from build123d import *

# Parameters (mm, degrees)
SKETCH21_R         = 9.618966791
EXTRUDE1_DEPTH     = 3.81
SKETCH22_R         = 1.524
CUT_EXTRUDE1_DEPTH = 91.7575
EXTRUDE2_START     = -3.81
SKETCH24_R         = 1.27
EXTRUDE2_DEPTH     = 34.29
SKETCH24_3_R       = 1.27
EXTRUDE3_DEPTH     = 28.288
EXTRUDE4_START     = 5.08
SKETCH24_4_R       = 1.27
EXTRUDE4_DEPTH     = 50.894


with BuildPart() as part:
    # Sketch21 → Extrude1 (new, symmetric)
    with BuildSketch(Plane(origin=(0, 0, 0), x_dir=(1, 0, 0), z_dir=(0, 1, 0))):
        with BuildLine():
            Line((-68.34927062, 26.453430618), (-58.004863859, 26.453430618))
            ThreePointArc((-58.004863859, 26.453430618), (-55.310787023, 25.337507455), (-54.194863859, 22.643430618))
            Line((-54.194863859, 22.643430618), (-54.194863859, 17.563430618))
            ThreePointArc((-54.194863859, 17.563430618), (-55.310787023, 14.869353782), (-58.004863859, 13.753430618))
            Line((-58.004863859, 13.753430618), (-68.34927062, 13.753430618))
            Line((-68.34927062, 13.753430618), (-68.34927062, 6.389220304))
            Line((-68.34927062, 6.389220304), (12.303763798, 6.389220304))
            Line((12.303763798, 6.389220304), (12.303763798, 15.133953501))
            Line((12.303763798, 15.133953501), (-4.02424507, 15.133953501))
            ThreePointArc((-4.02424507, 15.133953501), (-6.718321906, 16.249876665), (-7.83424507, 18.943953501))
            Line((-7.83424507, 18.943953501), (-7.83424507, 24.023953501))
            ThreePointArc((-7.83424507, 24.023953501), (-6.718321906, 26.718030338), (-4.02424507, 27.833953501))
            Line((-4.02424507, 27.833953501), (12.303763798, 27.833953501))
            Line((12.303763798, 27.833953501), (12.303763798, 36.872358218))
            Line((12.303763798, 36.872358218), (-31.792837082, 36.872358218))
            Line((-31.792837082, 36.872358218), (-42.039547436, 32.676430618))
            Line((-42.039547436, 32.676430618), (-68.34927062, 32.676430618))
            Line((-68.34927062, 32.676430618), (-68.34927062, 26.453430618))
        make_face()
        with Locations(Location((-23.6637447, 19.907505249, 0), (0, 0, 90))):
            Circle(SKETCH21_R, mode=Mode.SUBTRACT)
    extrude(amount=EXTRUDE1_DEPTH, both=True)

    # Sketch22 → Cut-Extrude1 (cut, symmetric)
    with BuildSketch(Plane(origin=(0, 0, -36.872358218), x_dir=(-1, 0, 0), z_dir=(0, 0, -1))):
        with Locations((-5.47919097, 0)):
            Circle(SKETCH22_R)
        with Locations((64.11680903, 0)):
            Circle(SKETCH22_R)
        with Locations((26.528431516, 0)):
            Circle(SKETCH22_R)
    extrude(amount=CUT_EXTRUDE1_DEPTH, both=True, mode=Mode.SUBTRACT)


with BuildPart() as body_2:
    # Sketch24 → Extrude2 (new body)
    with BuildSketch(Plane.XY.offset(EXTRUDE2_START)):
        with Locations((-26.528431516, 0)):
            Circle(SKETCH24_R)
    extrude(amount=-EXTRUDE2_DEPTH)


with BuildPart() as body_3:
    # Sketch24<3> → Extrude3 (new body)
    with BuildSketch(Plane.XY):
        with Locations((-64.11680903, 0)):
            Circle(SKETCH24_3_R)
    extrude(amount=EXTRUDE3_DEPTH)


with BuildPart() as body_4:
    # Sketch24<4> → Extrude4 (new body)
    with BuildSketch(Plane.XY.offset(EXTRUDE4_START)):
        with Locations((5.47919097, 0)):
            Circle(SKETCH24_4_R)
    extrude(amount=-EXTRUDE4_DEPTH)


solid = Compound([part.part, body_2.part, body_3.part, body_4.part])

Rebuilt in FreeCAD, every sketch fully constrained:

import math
import FreeCAD as App
import Part
import Sketcher
Q = App.Units.Quantity

doc = App.newDocument("Part")
body = doc.addObject("PartDesign::Body", "Body")

# Sketch on XZ plane
sketch1 = body.newObject("Sketcher::SketchObject", "Sketch")
sketch1.AttachmentSupport = (doc.getObject("XZ_Plane"), [""])
sketch1.MapMode = "FlatFace"
sketch1.addGeometry(Part.LineSegment(App.Vector(-68.349271, -26.453431, 0), App.Vector(-58.004864, -26.453431, 0)), False)
sketch1.addGeometry(Part.ArcOfCircle(Part.Circle(App.Vector(-58.004864, -22.643431, 0), App.Vector(0, 0, 1), 3.81), math.radians(-90), math.radians(0)), False)
sketch1.addGeometry(Part.LineSegment(App.Vector(-54.194864, -22.643431, 0), App.Vector(-54.194864, -17.563431, 0)), False)
sketch1.addGeometry(Part.ArcOfCircle(Part.Circle(App.Vector(-58.004864, -17.563431, 0), App.Vector(0, 0, 1), 3.81), math.radians(0), math.radians(90)), False)
sketch1.addGeometry(Part.LineSegment(App.Vector(-58.004864, -13.753431, 0), App.Vector(-68.349271, -13.753431, 0)), False)
sketch1.addGeometry(Part.LineSegment(App.Vector(-68.349271, -13.753431, 0), App.Vector(-68.349271, -6.38922, 0)), False)
sketch1.addGeometry(Part.LineSegment(App.Vector(-68.349271, -6.38922, 0), App.Vector(12.303764, -6.38922, 0)), False)
sketch1.addGeometry(Part.LineSegment(App.Vector(12.303764, -6.38922, 0), App.Vector(12.303764, -15.133954, 0)), False)
sketch1.addGeometry(Part.LineSegment(App.Vector(12.303764, -15.133954, 0), App.Vector(-4.024245, -15.133954, 0)), False)
sketch1.addGeometry(Part.ArcOfCircle(Part.Circle(App.Vector(-4.024245, -18.943954, 0), App.Vector(0, 0, 1), 3.81), math.radians(90), math.radians(180)), False)
sketch1.addGeometry(Part.LineSegment(App.Vector(-7.834245, -18.943954, 0), App.Vector(-7.834245, -24.023954, 0)), False)
sketch1.addGeometry(Part.ArcOfCircle(Part.Circle(App.Vector(-4.024245, -24.023954, 0), App.Vector(0, 0, 1), 3.81), math.radians(180), math.radians(270)), False)
sketch1.addGeometry(Part.LineSegment(App.Vector(-4.024245, -27.833954, 0), App.Vector(12.303764, -27.833954, 0)), False)
sketch1.addGeometry(Part.LineSegment(App.Vector(12.303764, -27.833954, 0), App.Vector(12.303764, -36.872358, 0)), False)
sketch1.addGeometry(Part.LineSegment(App.Vector(12.303764, -36.872358, 0), App.Vector(-31.792837, -36.872358, 0)), False)
sketch1.addGeometry(Part.LineSegment(App.Vector(-31.792837, -36.872358, 0), App.Vector(-42.039547, -32.676431, 0)), False)
sketch1.addGeometry(Part.LineSegment(App.Vector(-42.039547, -32.676431, 0), App.Vector(-68.349271, -32.676431, 0)), False)
sketch1.addGeometry(Part.LineSegment(App.Vector(-68.349271, -32.676431, 0), App.Vector(-68.349271, -26.453431, 0)), False)
sketch1.addGeometry(Part.Circle(App.Vector(-23.663745, -19.907505, 0), App.Vector(0, 0, 1), 9.618967), False)
sketch1.addConstraint(Sketcher.Constraint("Tangent", 0, 2, 1, 1))
sketch1.addConstraint(Sketcher.Constraint("Tangent", 1, 2, 2, 1))
sketch1.addConstraint(Sketcher.Constraint("Tangent", 2, 2, 3, 1))
sketch1.addConstraint(Sketcher.Constraint("Tangent", 3, 2, 4, 1))
sketch1.addConstraint(Sketcher.Constraint("Coincident", 4, 2, 5, 1))
sketch1.addConstraint(Sketcher.Constraint("Coincident", 5, 2, 6, 1))
sketch1.addConstraint(Sketcher.Constraint("Coincident", 6, 2, 7, 1))
sketch1.addConstraint(Sketcher.Constraint("Coincident", 7, 2, 8, 1))
sketch1.addConstraint(Sketcher.Constraint("Tangent", 8, 2, 9, 1))
sketch1.addConstraint(Sketcher.Constraint("Tangent", 9, 2, 10, 1))
sketch1.addConstraint(Sketcher.Constraint("Tangent", 10, 2, 11, 1))
sketch1.addConstraint(Sketcher.Constraint("Tangent", 11, 2, 12, 1))
sketch1.addConstraint(Sketcher.Constraint("Coincident", 12, 2, 13, 1))
sketch1.addConstraint(Sketcher.Constraint("Coincident", 13, 2, 14, 1))
sketch1.addConstraint(Sketcher.Constraint("Coincident", 14, 2, 15, 1))
sketch1.addConstraint(Sketcher.Constraint("Coincident", 15, 2, 16, 1))
sketch1.addConstraint(Sketcher.Constraint("Coincident", 16, 2, 17, 1))
sketch1.addConstraint(Sketcher.Constraint("Coincident", 17, 2, 0, 1))
sketch1.addConstraint(Sketcher.Constraint("Horizontal", 0))
sketch1.addConstraint(Sketcher.Constraint("Vertical", 2))
sketch1.addConstraint(Sketcher.Constraint("Horizontal", 4))
sketch1.addConstraint(Sketcher.Constraint("Vertical", 5))
sketch1.addConstraint(Sketcher.Constraint("Horizontal", 6))
sketch1.addConstraint(Sketcher.Constraint("Vertical", 7))
sketch1.addConstraint(Sketcher.Constraint("Horizontal", 8))
sketch1.addConstraint(Sketcher.Constraint("Vertical", 10))
sketch1.addConstraint(Sketcher.Constraint("Horizontal", 12))
sketch1.addConstraint(Sketcher.Constraint("Vertical", 13))
sketch1.addConstraint(Sketcher.Constraint("Horizontal", 14))
sketch1.addConstraint(Sketcher.Constraint("Horizontal", 16))
sketch1.addConstraint(Sketcher.Constraint("Vertical", 17))
sketch1.addConstraint(Sketcher.Constraint("Equal", 1, 3))
sketch1.addConstraint(Sketcher.Constraint("Equal", 3, 9))
sketch1.addConstraint(Sketcher.Constraint("Equal", 9, 11))
sketch1.addConstraint(Sketcher.Constraint("Vertical", 7, 2, 12, 2))
sketch1.addConstraint(Sketcher.Constraint("Vertical", 5, 2, 16, 2))
sketch1.addConstraint(Sketcher.Constraint("Equal", 2, 10))
sketch1.addConstraint(Sketcher.Constraint("Radius", 1, Q("0.15 in")))
sketch1.addConstraint(Sketcher.Constraint("DistanceY", 2, 1, 2, 2, Q("0.2 in")))
sketch1.addConstraint(Sketcher.Constraint("DistanceY", 17, 1, 17, 2, Q("0.245 in")))
sketch1.addConstraint(Sketcher.Constraint("Diameter", 18, 19.237934))
sketch1.addConstraint(Sketcher.Constraint("DistanceX", 14, 2, 14, 1, 44.096601))
sketch1.addConstraint(Sketcher.Constraint("DistanceX", -1, 1, 6, 2, Q("0.4844001 in")))
sketch1.addConstraint(Sketcher.Constraint("DistanceX", 8, 2, 8, 1, 16.328009))
sketch1.addConstraint(Sketcher.Constraint("DistanceY", 5, 1, 5, 2, 7.36421))
sketch1.addConstraint(Sketcher.Constraint("DistanceX", 18, 3, 9, 3, 19.6395))
sketch1.addConstraint(Sketcher.Constraint("Distance", 15, 11.072528))
sketch1.addConstraint(Sketcher.Constraint("DistanceX", 0, 1, 0, 2, 10.344407))
sketch1.addConstraint(Sketcher.Constraint("DistanceX", 6, 1, 6, 2, 80.653034))
sketch1.addConstraint(Sketcher.Constraint("DistanceX", 16, 2, 16, 1, 26.309723))
sketch1.addConstraint(Sketcher.Constraint("DistanceY", 7, 2, 7, 1, 8.744733))
sketch1.addConstraint(Sketcher.Constraint("DistanceY", 1, 3, -1, 1, 22.643431))
sketch1.addConstraint(Sketcher.Constraint("DistanceY", 18, 3, 9, 3, 0.963552))
pad1 = body.newObject("PartDesign::Pad", "Pad")
pad1.Profile = sketch1
pad1.Length = Q("0.3 in")
pad1.Midplane = True

# Sketch on XY plane
sketch2 = body.newObject("Sketcher::SketchObject", "Sketch001")
sketch2.AttachmentSupport = (doc.getObject("XY_Plane"), [""])
sketch2.MapMode = "FlatFace"
sketch2.AttachmentOffset = App.Placement(App.Vector(0, 0, -36.872358), App.Rotation())
sketch2.addGeometry(Part.Circle(App.Vector(5.479191, 0, 0), App.Vector(0, 0, 1), 1.524), False)
sketch2.addGeometry(Part.Circle(App.Vector(-64.116809, 0, 0), App.Vector(0, 0, 1), 1.524), False)
sketch2.addGeometry(Part.Circle(App.Vector(-26.528432, 0, 0), App.Vector(0, 0, 1), 1.524), False)
sketch2.addConstraint(Sketcher.Constraint("Equal", 0, 1))
sketch2.addConstraint(Sketcher.Constraint("Equal", 1, 2))
sketch2.addConstraint(Sketcher.Constraint("PointOnObject", 0, 3, -1))
sketch2.addConstraint(Sketcher.Constraint("PointOnObject", 1, 3, -1))
sketch2.addConstraint(Sketcher.Constraint("PointOnObject", 2, 3, -1))
sketch2.addConstraint(Sketcher.Constraint("Diameter", 0, Q("0.12 in")))
sketch2.addConstraint(Sketcher.Constraint("DistanceX", 1, 3, 0, 3, Q("2.74 in")))
sketch2.addConstraint(Sketcher.Constraint("DistanceX", -1, 1, 0, 3, 5.479191))
sketch2.addConstraint(Sketcher.Constraint("DistanceX", 2, 3, -1, 1, 26.528432))
pocket1 = body.newObject("PartDesign::Pocket", "Pocket")
pocket1.Profile = sketch2
pocket1.Length = Q("7.225 in")
pocket1.Midplane = True
body2 = doc.addObject("PartDesign::Body", "Body001")

# Sketch on XY plane
sketch3 = body2.newObject("Sketcher::SketchObject", "Sketch002")
sketch3.AttachmentSupport = (doc.getObject("XY_Plane001"), [""])
sketch3.MapMode = "FlatFace"
sketch3.AttachmentOffset = App.Placement(App.Vector(0, 0, -0.15 * 25.4), App.Rotation())
sketch3.addGeometry(Part.Circle(App.Vector(-26.528432, 0, 0), App.Vector(0, 0, 1), 1.27), False)
sketch3.addConstraint(Sketcher.Constraint("PointOnObject", 0, 3, -1))
sketch3.addConstraint(Sketcher.Constraint("Diameter", 0, Q("0.1 in")))
sketch3.addConstraint(Sketcher.Constraint("DistanceX", 0, 3, -1, 1, 26.528432))
pad2 = body2.newObject("PartDesign::Pad", "Pad001")
pad2.Profile = sketch3
pad2.Length = Q("1.35 in")
pad2.Reversed = True
body3 = doc.addObject("PartDesign::Body", "Body002")

# Sketch on XY plane
sketch4 = body3.newObject("Sketcher::SketchObject", "Sketch003")
sketch4.AttachmentSupport = (doc.getObject("XY_Plane002"), [""])
sketch4.MapMode = "FlatFace"
sketch4.addGeometry(Part.Circle(App.Vector(-64.116809, 0, 0), App.Vector(0, 0, 1), 1.27), False)
sketch4.addConstraint(Sketcher.Constraint("PointOnObject", 0, 3, -1))
sketch4.addConstraint(Sketcher.Constraint("Diameter", 0, Q("0.1 in")))
sketch4.addConstraint(Sketcher.Constraint("DistanceX", 0, 3, -1, 1, 64.116809))
pad3 = body3.newObject("PartDesign::Pad", "Pad002")
pad3.Profile = sketch4
pad3.Length = 28.288
body4 = doc.addObject("PartDesign::Body", "Body003")

# Sketch on XY plane
sketch5 = body4.newObject("Sketcher::SketchObject", "Sketch004")
sketch5.AttachmentSupport = (doc.getObject("XY_Plane003"), [""])
sketch5.MapMode = "FlatFace"
sketch5.AttachmentOffset = App.Placement(App.Vector(0, 0, 0.2 * 25.4), App.Rotation())
sketch5.addGeometry(Part.Circle(App.Vector(5.479191, 0, 0), App.Vector(0, 0, 1), 1.27), False)
sketch5.addConstraint(Sketcher.Constraint("PointOnObject", 0, 3, -1))
sketch5.addConstraint(Sketcher.Constraint("Diameter", 0, Q("0.1 in")))
sketch5.addConstraint(Sketcher.Constraint("DistanceX", -1, 1, 0, 3, 5.479191))
pad4 = body4.newObject("PartDesign::Pad", "Pad003")
pad4.Profile = sketch5
pad4.Length = 50.894
pad4.Reversed = True

doc.recompute()
